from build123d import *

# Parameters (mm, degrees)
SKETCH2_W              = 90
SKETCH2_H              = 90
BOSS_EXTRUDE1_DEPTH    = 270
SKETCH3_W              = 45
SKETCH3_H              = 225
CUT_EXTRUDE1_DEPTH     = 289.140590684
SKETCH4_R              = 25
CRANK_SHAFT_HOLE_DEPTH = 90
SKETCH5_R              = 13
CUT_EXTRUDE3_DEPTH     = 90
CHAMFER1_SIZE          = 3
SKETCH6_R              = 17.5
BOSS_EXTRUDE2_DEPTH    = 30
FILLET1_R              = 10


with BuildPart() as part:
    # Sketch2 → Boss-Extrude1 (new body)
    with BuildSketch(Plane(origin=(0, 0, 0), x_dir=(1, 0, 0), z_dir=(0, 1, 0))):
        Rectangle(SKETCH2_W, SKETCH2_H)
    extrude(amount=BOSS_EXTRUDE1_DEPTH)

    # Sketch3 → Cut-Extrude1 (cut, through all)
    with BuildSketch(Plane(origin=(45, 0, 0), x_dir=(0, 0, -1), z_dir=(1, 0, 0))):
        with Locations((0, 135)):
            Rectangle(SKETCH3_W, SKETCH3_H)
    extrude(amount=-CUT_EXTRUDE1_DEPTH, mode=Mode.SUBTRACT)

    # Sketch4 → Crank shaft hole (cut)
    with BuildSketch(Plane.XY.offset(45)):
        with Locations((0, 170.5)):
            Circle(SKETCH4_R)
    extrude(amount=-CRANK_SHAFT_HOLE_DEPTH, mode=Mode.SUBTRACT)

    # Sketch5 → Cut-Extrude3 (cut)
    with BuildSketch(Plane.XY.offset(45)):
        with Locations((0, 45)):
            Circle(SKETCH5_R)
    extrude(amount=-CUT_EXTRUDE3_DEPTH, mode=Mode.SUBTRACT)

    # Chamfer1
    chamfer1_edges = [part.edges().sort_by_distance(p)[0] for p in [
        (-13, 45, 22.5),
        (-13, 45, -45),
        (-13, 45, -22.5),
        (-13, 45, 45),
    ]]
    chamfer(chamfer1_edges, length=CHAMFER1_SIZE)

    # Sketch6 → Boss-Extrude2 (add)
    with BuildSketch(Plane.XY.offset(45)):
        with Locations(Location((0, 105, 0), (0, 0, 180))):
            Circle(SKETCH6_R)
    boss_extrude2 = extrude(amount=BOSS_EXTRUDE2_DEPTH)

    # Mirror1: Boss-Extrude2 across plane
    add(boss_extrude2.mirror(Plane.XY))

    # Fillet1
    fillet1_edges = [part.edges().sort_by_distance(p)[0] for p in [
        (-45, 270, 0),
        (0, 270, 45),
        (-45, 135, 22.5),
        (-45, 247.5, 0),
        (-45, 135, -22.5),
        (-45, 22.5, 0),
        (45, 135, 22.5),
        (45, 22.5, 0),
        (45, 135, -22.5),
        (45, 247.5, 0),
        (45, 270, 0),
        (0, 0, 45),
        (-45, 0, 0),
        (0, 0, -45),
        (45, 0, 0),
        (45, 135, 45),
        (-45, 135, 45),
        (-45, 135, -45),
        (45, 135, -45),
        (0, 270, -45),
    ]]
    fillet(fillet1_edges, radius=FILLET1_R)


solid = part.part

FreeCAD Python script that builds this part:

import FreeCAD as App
import Part
import Sketcher


def edges_at(feature, points):
    """Names of the edges that pass closest to the given points."""
    edges = feature.Shape.Edges
    near = lambda p: min(range(len(edges)), key=lambda i: edges[i].distToShape(Part.Vertex(*p))[0])
    return sorted({f"Edge{near(p) + 1}" for p in points})


def add_polygon(sketch, points):
    """Adds a closed chain of lines whose ends are joined by coincident constraints."""
    first, n = sketch.GeometryCount, len(points)
    for a, b in zip(points, points[1:] + points[:1]):
        sketch.addGeometry(Part.LineSegment(App.Vector(*a, 0), App.Vector(*b, 0)), False)
    for i in range(n):
        sketch.addConstraint(Sketcher.Constraint("Coincident", first + i, 2, first + (i + 1) % n, 1))

doc = App.newDocument("Part")
body = doc.addObject("PartDesign::Body", "Body")

sketch1 = body.newObject("Sketcher::SketchObject", "Sketch")
sketch1.AttachmentSupport = (doc.getObject("XZ_Plane"), [""])
sketch1.MapMode = "FlatFace"
add_polygon(sketch1, [(-45, -45), (-45, 45), (45, 45), (45, -45)])
sketch1.addConstraint([
    Sketcher.Constraint("Vertical", 0),
    Sketcher.Constraint("Horizontal", 1),
    Sketcher.Constraint("Vertical", 2),
    Sketcher.Constraint("Horizontal", 3),
    Sketcher.Constraint("Symmetric", 0, 2, 2, 2, -1, 1),
    Sketcher.Constraint("Equal", 3, 0),
    Sketcher.Constraint("DistanceX", 1, 1, 1, 2, 90.0),
])
pad1 = body.newObject("PartDesign::Pad", "Pad")
pad1.Profile = sketch1
pad1.Length = 270
pad1.Reversed = True

sketch2 = body.newObject("Sketcher::SketchObject", "Sketch001")
sketch2.AttachmentSupport = (doc.getObject("YZ_Plane"), [""])
sketch2.MapMode = "FlatFace"
sketch2.AttachmentOffset = App.Placement(App.Vector(0, 0, 45), App.Rotation())
add_polygon(sketch2, [(248, 22), (22, 22), (22, -22), (248, -22)])
sketch2.addConstraint([
    Sketcher.Constraint("Horizontal", 0),
    Sketcher.Constraint("Vertical", 1),
    Sketcher.Constraint("Horizontal", 2),
    Sketcher.Constraint("Vertical", 3),
    Sketcher.Constraint("DistanceX", 0, 2, 0, 1, 225.0),
    Sketcher.Constraint("DistanceY", 1, 2, 1, 1, 45.0),
    Sketcher.Constraint("DistanceX", -1, 1, 0, 2, 22.5),
    Sketcher.Constraint("DistanceY", -1, 1, 0, 2, 22.5),
])
pocket1 = body.newObject("PartDesign::Pocket", "Pocket")
pocket1.Profile = sketch2
pocket1.Type = "ThroughAll"

sketch3 = body.newObject("Sketcher::SketchObject", "Sketch002")
sketch3.AttachmentSupport = (doc.getObject("XY_Plane"), [""])
sketch3.MapMode = "FlatFace"
sketch3.AttachmentOffset = App.Placement(App.Vector(0, 0, 45), App.Rotation())
sketch3.addGeometry(Part.Circle(App.Vector(0, 170, 0), App.Vector(0, 0, 1), 25), False)
sketch3.addConstraint([
    Sketcher.Constraint("PointOnObject", 0, 3, -2),
    Sketcher.Constraint("Diameter", 0, 50.0),
    Sketcher.Constraint("DistanceY", -1, 1, 0, 3, 170.5),
])
pocket2 = body.newObject("PartDesign::Pocket", "Pocket001")
pocket2.Profile = sketch3
pocket2.Length = 90

sketch4 = body.newObject("Sketcher::SketchObject", "Sketch003")
sketch4.AttachmentSupport = (doc.getObject("XY_Plane"), [""])
sketch4.MapMode = "FlatFace"
sketch4.AttachmentOffset = App.Placement(App.Vector(0, 0, 45), App.Rotation())
sketch4.addGeometry(Part.Circle(App.Vector(0, 45, 0), App.Vector(0, 0, 1), 13), False)
sketch4.addConstraint([
    Sketcher.Constraint("PointOnObject", 0, 3, -2),
    Sketcher.Constraint("Diameter", 0, 26.0),
    Sketcher.Constraint("DistanceY", -1, 1, 0, 3, 45.0),
])
pocket3 = body.newObject("PartDesign::Pocket", "Pocket002")
pocket3.Profile = sketch4
pocket3.Length = 90
doc.recompute()

chamfer = body.newObject("PartDesign::Chamfer", "Chamfer")
chamfer.Base = (pocket3, edges_at(pocket3, [
    (-13, 45, 22.5),
    (-13, 45, -45),
    (-13, 45, -22.5),
    (-13, 45, 45),
]))
chamfer.Size = 3

sketch5 = body.newObject("Sketcher::SketchObject", "Sketch004")
sketch5.AttachmentSupport = (doc.getObject("XY_Plane"), [""])
sketch5.MapMode = "FlatFace"
sketch5.AttachmentOffset = App.Placement(App.Vector(0, 0, 45), App.Rotation())
sketch5.addGeometry(Part.Circle(App.Vector(0, 105, 0), App.Vector(0, 0, 1), 18), False)
sketch5.addConstraint([
    Sketcher.Constraint("PointOnObject", 0, 3, -2),
    Sketcher.Constraint("Diameter", 0, 35.0),
    Sketcher.Constraint("DistanceY", -1, 1, 0, 3, 105.0),
])
pad2 = body.newObject("PartDesign::Pad", "Pad001")
pad2.Profile = sketch5
pad2.Length = 30
doc.recompute()

mirrored = body.newObject("PartDesign::Mirrored", "Mirrored")
mirrored.Originals = [pad2]
mirrored.MirrorPlane = (doc.getObject("XY_Plane"), [""])
body.Tip = mirrored
doc.recompute()

fillet = body.newObject("PartDesign::Fillet", "Fillet")
fillet.Base = (mirrored, edges_at(mirrored, [
    (-45, 270, 0),
    (0, 270, 45),
    (-45, 135, 22.5),
    (-45, 247.5, 0),
    (-45, 135, -22.5),
    (-45, 22.5, 0),
    (45, 135, 22.5),
    (45, 22.5, 0),
    (45, 135, -22.5),
    (45, 247.5, 0),
    (45, 270, 0),
    (0, 0, 45),
    (-45, 0, 0),
    (0, 0, -45),
    (45, 0, 0),
    (45, 135, 45),
    (-45, 135, 45),
    (-45, 135, -45),
    (45, 135, -45),
    (0, 270, -45),
]))
fillet.Radius = 10

doc.recompute()
